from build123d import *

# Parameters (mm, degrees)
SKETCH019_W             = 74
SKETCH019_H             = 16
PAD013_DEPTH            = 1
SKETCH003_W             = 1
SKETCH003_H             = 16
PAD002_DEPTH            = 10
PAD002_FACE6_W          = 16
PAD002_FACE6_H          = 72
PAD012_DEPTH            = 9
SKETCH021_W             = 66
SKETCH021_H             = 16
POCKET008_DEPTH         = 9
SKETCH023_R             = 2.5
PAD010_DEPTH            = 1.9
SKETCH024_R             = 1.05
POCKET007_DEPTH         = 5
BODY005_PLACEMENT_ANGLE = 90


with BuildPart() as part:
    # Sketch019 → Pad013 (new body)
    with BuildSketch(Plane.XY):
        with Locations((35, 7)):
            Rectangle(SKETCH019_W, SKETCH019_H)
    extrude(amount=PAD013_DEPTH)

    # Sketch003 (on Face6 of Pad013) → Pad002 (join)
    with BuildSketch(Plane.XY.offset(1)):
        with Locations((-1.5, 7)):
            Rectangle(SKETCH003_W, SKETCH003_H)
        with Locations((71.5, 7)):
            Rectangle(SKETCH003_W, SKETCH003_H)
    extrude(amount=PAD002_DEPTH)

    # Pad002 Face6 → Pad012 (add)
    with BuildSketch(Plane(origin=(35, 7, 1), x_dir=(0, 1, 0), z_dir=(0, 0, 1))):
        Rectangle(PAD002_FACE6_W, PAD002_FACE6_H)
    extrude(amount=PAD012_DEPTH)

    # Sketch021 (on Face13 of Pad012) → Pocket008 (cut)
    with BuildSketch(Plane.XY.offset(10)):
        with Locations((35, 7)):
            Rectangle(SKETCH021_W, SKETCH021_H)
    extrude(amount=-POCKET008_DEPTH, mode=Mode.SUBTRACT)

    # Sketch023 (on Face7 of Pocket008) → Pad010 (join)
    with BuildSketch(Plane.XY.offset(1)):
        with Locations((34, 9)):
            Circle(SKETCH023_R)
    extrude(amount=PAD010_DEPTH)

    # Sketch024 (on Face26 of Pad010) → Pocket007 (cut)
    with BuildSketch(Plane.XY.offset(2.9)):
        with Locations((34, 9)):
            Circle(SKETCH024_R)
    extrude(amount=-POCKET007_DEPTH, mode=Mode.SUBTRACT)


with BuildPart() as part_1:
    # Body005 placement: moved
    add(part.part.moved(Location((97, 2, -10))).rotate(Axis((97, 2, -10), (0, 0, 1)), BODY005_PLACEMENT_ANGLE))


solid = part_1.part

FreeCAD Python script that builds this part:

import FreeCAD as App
import Part
import Sketcher
from FreeCAD import Vector

doc = App.newDocument("Part")
params = doc.addObject("Spreadsheet::Sheet", "Params")
for row, (alias, value) in enumerate([
    ("sketch1_width", "74 mm"),
    ("sketch1_height", "16 mm"),
    ("pad1_length", "1 mm"),
    ("sketch2_width", "1 mm"),
    ("sketch2_height", "16 mm"),
    ("pad2_length", "10 mm"),
    ("sketch3_width", "72 mm"),
    ("sketch3_height", "16 mm"),
    ("pad3_length", "9 mm"),
    ("sketch4_width", "66 mm"),
    ("sketch4_height", "16 mm"),
    ("pocket1_length", "9 mm"),
    ("sketch5_diameter", "5 mm"),
    ("pad4_length", "1.9 mm"),
    ("sketch6_diameter", "2.1 mm"),
    ("pocket2_length", "5 mm"),
], start=1):
    params.set(f"A{row}", alias)
    params.set(f"B{row}", "=" + value)
    params.setAlias(f"B{row}", alias)

body = doc.addObject("PartDesign::Body", "Body")

sketch1 = body.newObject("Sketcher::SketchObject", "Sketch")
sketch1.AttachmentSupport = (doc.getObject("XY_Plane"), [""])
sketch1.MapMode = "FlatFace"
sketch1.addGeometry([
    Part.LineSegment(Vector(-2, 15, 0), Vector(-2, -1, 0)),
    Part.LineSegment(Vector(-2, -1, 0), Vector(72, -1, 0)),
    Part.LineSegment(Vector(72, -1, 0), Vector(72, 15, 0)),
    Part.LineSegment(Vector(72, 15, 0), Vector(-2, 15, 0)),
], False)
sketch1.addConstraint([
    Sketcher.Constraint("Coincident", 0, 2, 1, 1),
    Sketcher.Constraint("Coincident", 1, 2, 2, 1),
    Sketcher.Constraint("Coincident", 2, 2, 3, 1),
    Sketcher.Constraint("Coincident", 3, 2, 0, 1),
    Sketcher.Constraint("Vertical", 0),
    Sketcher.Constraint("Horizontal", 1),
    Sketcher.Constraint("Vertical", 2),
    Sketcher.Constraint("Horizontal", 3),
    Sketcher.Constraint("DistanceX", 1, 1, 1, 2, 74.0),
    Sketcher.Constraint("DistanceY", 0, 2, 0, 1, 16.0),
    Sketcher.Constraint("DistanceX", 0, 2, -1, 1, 2.0),
    Sketcher.Constraint("DistanceY", 0, 2, -1, 1, 1.0),
])
sketch1.setExpression("Constraints[8]", "Params.sketch1_width")
sketch1.setExpression("Constraints[9]", "Params.sketch1_height")
pad1 = body.newObject("PartDesign::Pad", "Pad")
pad1.Profile = sketch1
pad1.setExpression("Length", "Params.pad1_length")

sketch2 = body.newObject("Sketcher::SketchObject", "Sketch001")
sketch2.AttachmentSupport = (doc.getObject("XY_Plane"), [""])
sketch2.MapMode = "FlatFace"
sketch2.AttachmentOffset = App.Placement(Vector(0, 0, 1), App.Rotation())
sketch2.addGeometry([
    Part.LineSegment(Vector(-2, 15, 0), Vector(-2, -1, 0)),
    Part.LineSegment(Vector(-2, -1, 0), Vector(-1, -1, 0)),
    Part.LineSegment(Vector(-1, -1, 0), Vector(-1, 15, 0)),
    Part.LineSegment(Vector(-1, 15, 0), Vector(-2, 15, 0)),
    Part.LineSegment(Vector(71, 15, 0), Vector(71, -1, 0)),
    Part.LineSegment(Vector(71, -1, 0), Vector(72, -1, 0)),
    Part.LineSegment(Vector(72, -1, 0), Vector(72, 15, 0)),
    Part.LineSegment(Vector(72, 15, 0), Vector(71, 15, 0)),
], False)
sketch2.addConstraint([
    Sketcher.Constraint("Coincident", 0, 2, 1, 1),
    Sketcher.Constraint("Coincident", 1, 2, 2, 1),
    Sketcher.Constraint("Coincident", 2, 2, 3, 1),
    Sketcher.Constraint("Coincident", 3, 2, 0, 1),
    Sketcher.Constraint("Coincident", 4, 2, 5, 1),
    Sketcher.Constraint("Coincident", 5, 2, 6, 1),
    Sketcher.Constraint("Coincident", 6, 2, 7, 1),
    Sketcher.Constraint("Coincident", 7, 2, 4, 1),
    Sketcher.Constraint("Vertical", 0),
    Sketcher.Constraint("Horizontal", 1),
    Sketcher.Constraint("Vertical", 2),
    Sketcher.Constraint("Horizontal", 3),
    Sketcher.Constraint("Vertical", 4),
    Sketcher.Constraint("Horizontal", 5),
    Sketcher.Constraint("Vertical", 6),
    Sketcher.Constraint("Horizontal", 7),
    Sketcher.Constraint("Horizontal", 1, 2, 4, 2),
    Sketcher.Constraint("Horizontal", 3, 2, 6, 2),
    Sketcher.Constraint("Equal", 3, 5),
    Sketcher.Constraint("DistanceX", 1, 1, 1, 2, 1.0),
    Sketcher.Constraint("DistanceY", 0, 2, 0, 1, 16.0),
    Sketcher.Constraint("DistanceX", 0, 2, -1, 1, 2.0),
    Sketcher.Constraint("DistanceY", 0, 2, -1, 1, 1.0),
    Sketcher.Constraint("DistanceX", -1, 1, 4, 2, 71.0),
])
sketch2.setExpression("Constraints[19]", "Params.sketch2_width")
sketch2.setExpression("Constraints[20]", "Params.sketch2_height")
pad2 = body.newObject("PartDesign::Pad", "Pad001")
pad2.Profile = sketch2
pad2.setExpression("Length", "Params.pad2_length")

sketch3 = body.newObject("Sketcher::SketchObject", "Sketch002")
sketch3.AttachmentSupport = (doc.getObject("XY_Plane"), [""])
sketch3.MapMode = "FlatFace"
sketch3.AttachmentOffset = App.Placement(Vector(0, 0, 1), App.Rotation())
sketch3.addGeometry([
    Part.LineSegment(Vector(-1, -1, 0), Vector(71, -1, 0)),
    Part.LineSegment(Vector(71, -1, 0), Vector(71, 15, 0)),
    Part.LineSegment(Vector(71, 15, 0), Vector(-1, 15, 0)),
    Part.LineSegment(Vector(-1, 15, 0), Vector(-1, -1, 0)),
], False)
sketch3.addConstraint([
    Sketcher.Constraint("Coincident", 0, 2, 1, 1),
    Sketcher.Constraint("Coincident", 1, 2, 2, 1),
    Sketcher.Constraint("Coincident", 2, 2, 3, 1),
    Sketcher.Constraint("Coincident", 3, 2, 0, 1),
    Sketcher.Constraint("Horizontal", 0),
    Sketcher.Constraint("Vertical", 1),
    Sketcher.Constraint("Horizontal", 2),
    Sketcher.Constraint("Vertical", 3),
    Sketcher.Constraint("DistanceX", 0, 1, 0, 2, 72.0),
    Sketcher.Constraint("DistanceY", 1, 1, 1, 2, 16.0),
    Sketcher.Constraint("DistanceX", -1, 1, 0, 2, 71.0),
    Sketcher.Constraint("DistanceY", 0, 2, -1, 1, 1.0),
])
sketch3.setExpression("Constraints[8]", "Params.sketch3_width")
sketch3.setExpression("Constraints[9]", "Params.sketch3_height")
pad3 = body.newObject("PartDesign::Pad", "Pad002")
pad3.Profile = sketch3
pad3.setExpression("Length", "Params.pad3_length")

sketch4 = body.newObject("Sketcher::SketchObject", "Sketch003")
sketch4.AttachmentSupport = (doc.getObject("XY_Plane"), [""])
sketch4.MapMode = "FlatFace"
sketch4.AttachmentOffset = App.Placement(Vector(0, 0, 10), App.Rotation())
sketch4.addGeometry([
    Part.LineSegment(Vector(2, 15, 0), Vector(2, -1, 0)),
    Part.LineSegment(Vector(2, -1, 0), Vector(68, -1, 0)),
    Part.LineSegment(Vector(68, -1, 0), Vector(68, 15, 0)),
    Part.LineSegment(Vector(68, 15, 0), Vector(2, 15, 0)),
], False)
sketch4.addConstraint([
    Sketcher.Constraint("Coincident", 0, 2, 1, 1),
    Sketcher.Constraint("Coincident", 1, 2, 2, 1),
    Sketcher.Constraint("Coincident", 2, 2, 3, 1),
    Sketcher.Constraint("Coincident", 3, 2, 0, 1),
    Sketcher.Constraint("Vertical", 0),
    Sketcher.Constraint("Horizontal", 1),
    Sketcher.Constraint("Vertical", 2),
    Sketcher.Constraint("Horizontal", 3),
    Sketcher.Constraint("DistanceX", 1, 1, 1, 2, 66.0),
    Sketcher.Constraint("DistanceY", 0, 2, 0, 1, 16.0),
    Sketcher.Constraint("DistanceX", -1, 1, 0, 2, 2.0),
    Sketcher.Constraint("DistanceY", 0, 2, -1, 1, 1.0),
])
sketch4.setExpression("Constraints[8]", "Params.sketch4_width")
sketch4.setExpression("Constraints[9]", "Params.sketch4_height")
pocket1 = body.newObject("PartDesign::Pocket", "Pocket")
pocket1.Profile = sketch4
pocket1.setExpression("Length", "Params.pocket1_length")

sketch5 = body.newObject("Sketcher::SketchObject", "Sketch004")
sketch5.AttachmentSupport = (doc.getObject("XY_Plane"), [""])
sketch5.MapMode = "FlatFace"
sketch5.AttachmentOffset = App.Placement(Vector(0, 0, 1), App.Rotation())
sketch5.addGeometry(Part.Circle(Vector(34, 9, 0), Vector(0, 0, 1), 2.5), False)
sketch5.addConstraint([
    Sketcher.Constraint("Diameter", 0, 5.0),
    Sketcher.Constraint("DistanceX", -1, 1, 0, 3, 34.0),
    Sketcher.Constraint("DistanceY", -1, 1, 0, 3, 9.0),
])
sketch5.setExpression("Constraints[0]", "Params.sketch5_diameter")
pad4 = body.newObject("PartDesign::Pad", "Pad003")
pad4.Profile = sketch5
pad4.setExpression("Length", "Params.pad4_length")

sketch6 = body.newObject("Sketcher::SketchObject", "Sketch005")
sketch6.AttachmentSupport = (doc.getObject("XY_Plane"), [""])
sketch6.MapMode = "FlatFace"
sketch6.AttachmentOffset = App.Placement(Vector(0, 0, 2.9), App.Rotation())
sketch6.addGeometry(Part.Circle(Vector(34, 9, 0), Vector(0, 0, 1), 1.1), False)
sketch6.addConstraint([
    Sketcher.Constraint("Diameter", 0, 2.1),
    Sketcher.Constraint("DistanceX", -1, 1, 0, 3, 34.0),
    Sketcher.Constraint("DistanceY", -1, 1, 0, 3, 9.0),
])
sketch6.setExpression("Constraints[0]", "Params.sketch6_diameter")
pocket2 = body.newObject("PartDesign::Pocket", "Pocket001")
pocket2.Profile = sketch6
pocket2.setExpression("Length", "Params.pocket2_length")
body2 = doc.addObject("PartDesign::Body", "Body001")
doc.recompute()

body.Placement = App.Placement(Vector(97, 2, -10), App.Rotation(Vector(0, 0, 1), 90))
boolean = body2.newObject("PartDesign::Boolean", "Boolean")
boolean.Type = "Fuse"
boolean.addObjects([body])

doc.recompute()
